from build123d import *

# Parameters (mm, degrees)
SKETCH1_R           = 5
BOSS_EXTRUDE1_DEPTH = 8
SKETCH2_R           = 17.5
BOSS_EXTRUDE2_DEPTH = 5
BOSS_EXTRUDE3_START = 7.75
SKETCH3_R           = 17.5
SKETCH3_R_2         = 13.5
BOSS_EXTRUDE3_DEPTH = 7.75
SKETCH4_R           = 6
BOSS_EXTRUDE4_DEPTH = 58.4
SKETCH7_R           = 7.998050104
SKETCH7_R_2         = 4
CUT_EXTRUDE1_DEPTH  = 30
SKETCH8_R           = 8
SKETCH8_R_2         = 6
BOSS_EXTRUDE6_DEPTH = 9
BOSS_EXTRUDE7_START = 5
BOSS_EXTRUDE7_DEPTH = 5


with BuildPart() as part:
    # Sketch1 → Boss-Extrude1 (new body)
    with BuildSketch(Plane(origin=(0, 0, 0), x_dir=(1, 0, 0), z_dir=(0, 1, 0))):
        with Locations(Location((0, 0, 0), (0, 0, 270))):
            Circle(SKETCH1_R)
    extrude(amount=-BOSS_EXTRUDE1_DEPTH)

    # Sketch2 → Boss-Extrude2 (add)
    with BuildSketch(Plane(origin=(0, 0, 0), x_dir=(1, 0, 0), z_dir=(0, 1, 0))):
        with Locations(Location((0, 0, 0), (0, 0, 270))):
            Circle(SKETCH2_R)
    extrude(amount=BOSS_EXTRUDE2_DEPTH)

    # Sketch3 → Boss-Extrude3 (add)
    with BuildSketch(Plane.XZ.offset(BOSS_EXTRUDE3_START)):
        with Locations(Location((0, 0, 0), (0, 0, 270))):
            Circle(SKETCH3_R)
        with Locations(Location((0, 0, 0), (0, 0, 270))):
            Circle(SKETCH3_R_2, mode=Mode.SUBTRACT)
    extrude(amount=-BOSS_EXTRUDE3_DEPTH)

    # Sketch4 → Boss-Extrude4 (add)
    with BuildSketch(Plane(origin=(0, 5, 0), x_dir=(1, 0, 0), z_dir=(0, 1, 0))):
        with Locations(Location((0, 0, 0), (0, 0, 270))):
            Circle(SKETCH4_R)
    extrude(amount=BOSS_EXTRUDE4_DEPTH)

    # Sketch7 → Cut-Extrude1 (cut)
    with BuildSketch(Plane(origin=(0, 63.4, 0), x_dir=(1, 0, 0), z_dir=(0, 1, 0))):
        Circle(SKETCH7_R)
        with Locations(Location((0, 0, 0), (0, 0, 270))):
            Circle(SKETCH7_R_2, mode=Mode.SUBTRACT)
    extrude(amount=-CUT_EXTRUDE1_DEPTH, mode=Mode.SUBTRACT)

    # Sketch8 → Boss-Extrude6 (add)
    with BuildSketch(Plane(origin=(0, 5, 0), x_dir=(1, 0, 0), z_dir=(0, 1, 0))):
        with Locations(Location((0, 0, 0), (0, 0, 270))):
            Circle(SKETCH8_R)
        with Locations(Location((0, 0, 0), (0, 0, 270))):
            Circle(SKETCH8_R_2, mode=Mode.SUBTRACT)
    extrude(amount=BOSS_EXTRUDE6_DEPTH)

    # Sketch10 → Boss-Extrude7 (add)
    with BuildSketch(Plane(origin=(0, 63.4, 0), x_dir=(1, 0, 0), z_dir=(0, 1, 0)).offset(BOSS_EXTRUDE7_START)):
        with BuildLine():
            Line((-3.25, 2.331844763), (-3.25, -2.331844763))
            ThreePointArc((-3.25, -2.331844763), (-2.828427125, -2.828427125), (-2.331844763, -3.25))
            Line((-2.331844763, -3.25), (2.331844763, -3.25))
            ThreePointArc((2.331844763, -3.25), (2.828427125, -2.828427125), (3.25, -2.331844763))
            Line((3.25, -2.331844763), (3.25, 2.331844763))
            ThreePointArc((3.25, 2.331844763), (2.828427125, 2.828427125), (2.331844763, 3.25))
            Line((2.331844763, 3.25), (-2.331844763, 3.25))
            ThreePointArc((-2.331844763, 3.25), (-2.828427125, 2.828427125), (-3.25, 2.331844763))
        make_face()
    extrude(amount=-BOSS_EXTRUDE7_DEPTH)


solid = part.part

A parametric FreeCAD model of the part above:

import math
import FreeCAD as App
import Part
import Sketcher
from FreeCAD import Vector
Q = App.Units.Quantity

doc = App.newDocument("Part")
params = doc.addObject("Spreadsheet::Sheet", "Params")
for row, (alias, value) in enumerate([
    ("sketch1_diameter", "10 mm"),
    ("pad1_length", "8 mm"),
    ("sketch2_diameter", "35 mm"),
    ("pad2_length", "5 mm"),
    ("sketch3_diameter", "35 mm"),
    ("sketch3_diameter2", "27 mm"),
    ("pad3_length", "7.75 mm"),
    ("sketch4_diameter", "12 mm"),
    ("pad4_length", "58.4 mm"),
    ("sketch5_diameter", "8 mm"),
    ("pocket1_length", "30 mm"),
    ("sketch6_diameter", "16 mm"),
    ("sketch6_diameter2", "12 mm"),
    ("pad5_length", "9 mm"),
    ("sketch7_radius", "4 mm"),
    ("pad6_length", "5 mm"),
], start=1):
    params.set(f"A{row}", alias)
    params.set(f"B{row}", "=" + value)
    params.setAlias(f"B{row}", alias)

body = doc.addObject("PartDesign::Body", "Body")

# Sketch on XZ plane
sketch1 = body.newObject("Sketcher::SketchObject", "Sketch")
sketch1.AttachmentSupport = (doc.getObject("XZ_Plane"), [""])
sketch1.MapMode = "FlatFace"
sketch1.addGeometry(Part.Circle(Vector(0, 0, 0), Vector(0, 0, 1), 5), False)
sketch1.addConstraint(Sketcher.Constraint("Coincident", 0, 3, -1, 1))
sketch1.addConstraint(Sketcher.Constraint("Diameter", 0, Q("10 mm")))
sketch1.setExpression("Constraints[1]", "Params.sketch1_diameter")
pad1 = body.newObject("PartDesign::Pad", "Pad")
pad1.Profile = sketch1
pad1.setExpression("Length", "Params.pad1_length")

# Sketch on XZ plane
sketch2 = body.newObject("Sketcher::SketchObject", "Sketch001")
sketch2.AttachmentSupport = (doc.getObject("XZ_Plane"), [""])
sketch2.MapMode = "FlatFace"
sketch2.addGeometry(Part.Circle(Vector(0, 0, 0), Vector(0, 0, 1), 18), False)
sketch2.addConstraint(Sketcher.Constraint("Coincident", 0, 3, -1, 1))
sketch2.addConstraint(Sketcher.Constraint("Diameter", 0, Q("35 mm")))
sketch2.setExpression("Constraints[1]", "Params.sketch2_diameter")
pad2 = body.newObject("PartDesign::Pad", "Pad001")
pad2.Profile = sketch2
pad2.setExpression("Length", "Params.pad2_length")
pad2.Reversed = True

# Sketch on XZ plane
sketch3 = body.newObject("Sketcher::SketchObject", "Sketch002")
sketch3.AttachmentSupport = (doc.getObject("XZ_Plane"), [""])
sketch3.MapMode = "FlatFace"
sketch3.AttachmentOffset = App.Placement(Vector(0, 0, 7.75), App.Rotation())
sketch3.addGeometry(Part.Circle(Vector(0, 0, 0), Vector(0, 0, 1), 18), False)
sketch3.addGeometry(Part.Circle(Vector(0, 0, 0), Vector(0, 0, 1), 14), False)
sketch3.addConstraint(Sketcher.Constraint("Coincident", 0, 3, -1, 1))
sketch3.addConstraint(Sketcher.Constraint("Coincident", 1, 3, -1, 1))
sketch3.addConstraint(Sketcher.Constraint("Diameter", 0, Q("35 mm")))
sketch3.addConstraint(Sketcher.Constraint("Diameter", 1, Q("27 mm")))
sketch3.setExpression("Constraints[2]", "Params.sketch3_diameter")
sketch3.setExpression("Constraints[3]", "Params.sketch3_diameter2")
pad3 = body.newObject("PartDesign::Pad", "Pad002")
pad3.Profile = sketch3
pad3.setExpression("Length", "Params.pad3_length")
pad3.Reversed = True

# Sketch on XZ plane
sketch4 = body.newObject("Sketcher::SketchObject", "Sketch003")
sketch4.AttachmentSupport = (doc.getObject("XZ_Plane"), [""])
sketch4.MapMode = "FlatFace"
sketch4.AttachmentOffset = App.Placement(Vector(0, 0, -5), App.Rotation())
sketch4.addGeometry(Part.Circle(Vector(0, 0, 0), Vector(0, 0, 1), 6), False)
sketch4.addConstraint(Sketcher.Constraint("Coincident", 0, 3, -1, 1))
sketch4.addConstraint(Sketcher.Constraint("Diameter", 0, Q("12 mm")))
sketch4.setExpression("Constraints[1]", "Params.sketch4_diameter")
pad4 = body.newObject("PartDesign::Pad", "Pad003")
pad4.Profile = sketch4
pad4.setExpression("Length", "Params.pad4_length")
pad4.Reversed = True

# Sketch on XZ plane
sketch5 = body.newObject("Sketcher::SketchObject", "Sketch004")
sketch5.AttachmentSupport = (doc.getObject("XZ_Plane"), [""])
sketch5.MapMode = "FlatFace"
sketch5.AttachmentOffset = App.Placement(Vector(0, 0, -63.4), App.Rotation())
sketch5.addGeometry(Part.Circle(Vector(0, 0, 0), Vector(0, 0, 1), 8), False)
sketch5.addGeometry(Part.Circle(Vector(0, 0, 0), Vector(0, 0, 1), 4), False)
sketch5.addConstraint(Sketcher.Constraint("Coincident", 0, 3, -1, 1))
sketch5.addConstraint(Sketcher.Constraint("Coincident", 1, 3, -1, 1))
sketch5.addConstraint(Sketcher.Constraint("Diameter", 1, Q("8 mm")))
sketch5.addConstraint(Sketcher.Constraint("Diameter", 0, Q("15.9961 mm")))
sketch5.setExpression("Constraints[2]", "Params.sketch5_diameter")
pocket1 = body.newObject("PartDesign::Pocket", "Pocket")
pocket1.Profile = sketch5
pocket1.setExpression("Length", "Params.pocket1_length")
pocket1.Reversed = True

# Sketch on XZ plane
sketch6 = body.newObject("Sketcher::SketchObject", "Sketch005")
sketch6.AttachmentSupport = (doc.getObject("XZ_Plane"), [""])
sketch6.MapMode = "FlatFace"
sketch6.AttachmentOffset = App.Placement(Vector(0, 0, -5), App.Rotation())
sketch6.addGeometry(Part.Circle(Vector(0, 0, 0), Vector(0, 0, 1), 8), False)
sketch6.addGeometry(Part.Circle(Vector(0, 0, 0), Vector(0, 0, 1), 6), False)
sketch6.addConstraint(Sketcher.Constraint("Coincident", 0, 3, -1, 1))
sketch6.addConstraint(Sketcher.Constraint("Coincident", 1, 3, -1, 1))
sketch6.addConstraint(Sketcher.Constraint("Diameter", 0, Q("16 mm")))
sketch6.addConstraint(Sketcher.Constraint("Diameter", 1, Q("12 mm")))
sketch6.setExpression("Constraints[2]", "Params.sketch6_diameter")
sketch6.setExpression("Constraints[3]", "Params.sketch6_diameter2")
pad5 = body.newObject("PartDesign::Pad", "Pad004")
pad5.Profile = sketch6
pad5.setExpression("Length", "Params.pad5_length")
pad5.Reversed = True

# Sketch on XZ plane
sketch7 = body.newObject("Sketcher::SketchObject", "Sketch006")
sketch7.AttachmentSupport = (doc.getObject("XZ_Plane"), [""])
sketch7.MapMode = "FlatFace"
sketch7.AttachmentOffset = App.Placement(Vector(0, 0, -68.4), App.Rotation())
sketch7.addGeometry(Part.LineSegment(Vector(-3.2, -2.3, 0), Vector(-3.2, 2.3, 0)), False)
sketch7.addGeometry(Part.ArcOfCircle(Part.Circle(Vector(0, 0, 0), Vector(0, 0, 1), 4), math.radians(125.66), math.radians(144.34)), False)
sketch7.addGeometry(Part.LineSegment(Vector(-2.3, 3.2, 0), Vector(2.3, 3.2, 0)), False)
sketch7.addGeometry(Part.ArcOfCircle(Part.Circle(Vector(0, 0, 0), Vector(0, 0, 1), 4), math.radians(35.66), math.radians(54.34)), False)
sketch7.addGeometry(Part.LineSegment(Vector(3.2, 2.3, 0), Vector(3.2, -2.3, 0)), False)
sketch7.addGeometry(Part.ArcOfCircle(Part.Circle(Vector(0, 0, 0), Vector(0, 0, 1), 4), math.radians(-54.34), math.radians(-35.66)), False)
sketch7.addGeometry(Part.LineSegment(Vector(2.3, -3.2, 0), Vector(-2.3, -3.2, 0)), False)
sketch7.addGeometry(Part.ArcOfCircle(Part.Circle(Vector(0, 0, 0), Vector(0, 0, 1), 4), math.radians(-144.34), math.radians(-125.66)), False)
sketch7.addConstraint(Sketcher.Constraint("Coincident", 0, 2, 1, 2))
sketch7.addConstraint(Sketcher.Constraint("Coincident", 1, 1, 2, 1))
sketch7.addConstraint(Sketcher.Constraint("Coincident", 2, 2, 3, 2))
sketch7.addConstraint(Sketcher.Constraint("Coincident", 3, 1, 4, 1))
sketch7.addConstraint(Sketcher.Constraint("Coincident", 4, 2, 5, 2))
sketch7.addConstraint(Sketcher.Constraint("Coincident", 5, 1, 6, 1))
sketch7.addConstraint(Sketcher.Constraint("Coincident", 6, 2, 7, 2))
sketch7.addConstraint(Sketcher.Constraint("Coincident", 7, 1, 0, 1))
sketch7.addConstraint(Sketcher.Constraint("Vertical", 0))
sketch7.addConstraint(Sketcher.Constraint("Horizontal", 2))
sketch7.addConstraint(Sketcher.Constraint("Vertical", 4))
sketch7.addConstraint(Sketcher.Constraint("Horizontal", 6))
sketch7.addConstraint(Sketcher.Constraint("Coincident", 1, 3, -1, 1))
sketch7.addConstraint(Sketcher.Constraint("Coincident", 3, 3, -1, 1))
sketch7.addConstraint(Sketcher.Constraint("Coincident", 5, 3, -1, 1))
sketch7.addConstraint(Sketcher.Constraint("Coincident", 7, 3, -1, 1))
sketch7.addConstraint(Sketcher.Constraint("Equal", 1, 3))
sketch7.addConstraint(Sketcher.Constraint("Equal", 3, 5))
sketch7.addConstraint(Sketcher.Constraint("Equal", 5, 7))
sketch7.addConstraint(Sketcher.Constraint("Horizontal", 0, 2, 3, 1))
sketch7.addConstraint(Sketcher.Constraint("Vertical", 2, 2, 5, 1))
sketch7.addConstraint(Sketcher.Constraint("Equal", 6, 0))
sketch7.addConstraint(Sketcher.Constraint("Radius", 1, Q("4 mm")))
sketch7.addConstraint(Sketcher.Constraint("DistanceX", 0, 2, -1, 1, Q("3.25 mm")))
sketch7.setExpression("Constraints[22]", "Params.sketch7_radius")
pad6 = body.newObject("PartDesign::Pad", "Pad005")
pad6.Profile = sketch7
pad6.setExpression("Length", "Params.pad6_length")

doc.recompute()
